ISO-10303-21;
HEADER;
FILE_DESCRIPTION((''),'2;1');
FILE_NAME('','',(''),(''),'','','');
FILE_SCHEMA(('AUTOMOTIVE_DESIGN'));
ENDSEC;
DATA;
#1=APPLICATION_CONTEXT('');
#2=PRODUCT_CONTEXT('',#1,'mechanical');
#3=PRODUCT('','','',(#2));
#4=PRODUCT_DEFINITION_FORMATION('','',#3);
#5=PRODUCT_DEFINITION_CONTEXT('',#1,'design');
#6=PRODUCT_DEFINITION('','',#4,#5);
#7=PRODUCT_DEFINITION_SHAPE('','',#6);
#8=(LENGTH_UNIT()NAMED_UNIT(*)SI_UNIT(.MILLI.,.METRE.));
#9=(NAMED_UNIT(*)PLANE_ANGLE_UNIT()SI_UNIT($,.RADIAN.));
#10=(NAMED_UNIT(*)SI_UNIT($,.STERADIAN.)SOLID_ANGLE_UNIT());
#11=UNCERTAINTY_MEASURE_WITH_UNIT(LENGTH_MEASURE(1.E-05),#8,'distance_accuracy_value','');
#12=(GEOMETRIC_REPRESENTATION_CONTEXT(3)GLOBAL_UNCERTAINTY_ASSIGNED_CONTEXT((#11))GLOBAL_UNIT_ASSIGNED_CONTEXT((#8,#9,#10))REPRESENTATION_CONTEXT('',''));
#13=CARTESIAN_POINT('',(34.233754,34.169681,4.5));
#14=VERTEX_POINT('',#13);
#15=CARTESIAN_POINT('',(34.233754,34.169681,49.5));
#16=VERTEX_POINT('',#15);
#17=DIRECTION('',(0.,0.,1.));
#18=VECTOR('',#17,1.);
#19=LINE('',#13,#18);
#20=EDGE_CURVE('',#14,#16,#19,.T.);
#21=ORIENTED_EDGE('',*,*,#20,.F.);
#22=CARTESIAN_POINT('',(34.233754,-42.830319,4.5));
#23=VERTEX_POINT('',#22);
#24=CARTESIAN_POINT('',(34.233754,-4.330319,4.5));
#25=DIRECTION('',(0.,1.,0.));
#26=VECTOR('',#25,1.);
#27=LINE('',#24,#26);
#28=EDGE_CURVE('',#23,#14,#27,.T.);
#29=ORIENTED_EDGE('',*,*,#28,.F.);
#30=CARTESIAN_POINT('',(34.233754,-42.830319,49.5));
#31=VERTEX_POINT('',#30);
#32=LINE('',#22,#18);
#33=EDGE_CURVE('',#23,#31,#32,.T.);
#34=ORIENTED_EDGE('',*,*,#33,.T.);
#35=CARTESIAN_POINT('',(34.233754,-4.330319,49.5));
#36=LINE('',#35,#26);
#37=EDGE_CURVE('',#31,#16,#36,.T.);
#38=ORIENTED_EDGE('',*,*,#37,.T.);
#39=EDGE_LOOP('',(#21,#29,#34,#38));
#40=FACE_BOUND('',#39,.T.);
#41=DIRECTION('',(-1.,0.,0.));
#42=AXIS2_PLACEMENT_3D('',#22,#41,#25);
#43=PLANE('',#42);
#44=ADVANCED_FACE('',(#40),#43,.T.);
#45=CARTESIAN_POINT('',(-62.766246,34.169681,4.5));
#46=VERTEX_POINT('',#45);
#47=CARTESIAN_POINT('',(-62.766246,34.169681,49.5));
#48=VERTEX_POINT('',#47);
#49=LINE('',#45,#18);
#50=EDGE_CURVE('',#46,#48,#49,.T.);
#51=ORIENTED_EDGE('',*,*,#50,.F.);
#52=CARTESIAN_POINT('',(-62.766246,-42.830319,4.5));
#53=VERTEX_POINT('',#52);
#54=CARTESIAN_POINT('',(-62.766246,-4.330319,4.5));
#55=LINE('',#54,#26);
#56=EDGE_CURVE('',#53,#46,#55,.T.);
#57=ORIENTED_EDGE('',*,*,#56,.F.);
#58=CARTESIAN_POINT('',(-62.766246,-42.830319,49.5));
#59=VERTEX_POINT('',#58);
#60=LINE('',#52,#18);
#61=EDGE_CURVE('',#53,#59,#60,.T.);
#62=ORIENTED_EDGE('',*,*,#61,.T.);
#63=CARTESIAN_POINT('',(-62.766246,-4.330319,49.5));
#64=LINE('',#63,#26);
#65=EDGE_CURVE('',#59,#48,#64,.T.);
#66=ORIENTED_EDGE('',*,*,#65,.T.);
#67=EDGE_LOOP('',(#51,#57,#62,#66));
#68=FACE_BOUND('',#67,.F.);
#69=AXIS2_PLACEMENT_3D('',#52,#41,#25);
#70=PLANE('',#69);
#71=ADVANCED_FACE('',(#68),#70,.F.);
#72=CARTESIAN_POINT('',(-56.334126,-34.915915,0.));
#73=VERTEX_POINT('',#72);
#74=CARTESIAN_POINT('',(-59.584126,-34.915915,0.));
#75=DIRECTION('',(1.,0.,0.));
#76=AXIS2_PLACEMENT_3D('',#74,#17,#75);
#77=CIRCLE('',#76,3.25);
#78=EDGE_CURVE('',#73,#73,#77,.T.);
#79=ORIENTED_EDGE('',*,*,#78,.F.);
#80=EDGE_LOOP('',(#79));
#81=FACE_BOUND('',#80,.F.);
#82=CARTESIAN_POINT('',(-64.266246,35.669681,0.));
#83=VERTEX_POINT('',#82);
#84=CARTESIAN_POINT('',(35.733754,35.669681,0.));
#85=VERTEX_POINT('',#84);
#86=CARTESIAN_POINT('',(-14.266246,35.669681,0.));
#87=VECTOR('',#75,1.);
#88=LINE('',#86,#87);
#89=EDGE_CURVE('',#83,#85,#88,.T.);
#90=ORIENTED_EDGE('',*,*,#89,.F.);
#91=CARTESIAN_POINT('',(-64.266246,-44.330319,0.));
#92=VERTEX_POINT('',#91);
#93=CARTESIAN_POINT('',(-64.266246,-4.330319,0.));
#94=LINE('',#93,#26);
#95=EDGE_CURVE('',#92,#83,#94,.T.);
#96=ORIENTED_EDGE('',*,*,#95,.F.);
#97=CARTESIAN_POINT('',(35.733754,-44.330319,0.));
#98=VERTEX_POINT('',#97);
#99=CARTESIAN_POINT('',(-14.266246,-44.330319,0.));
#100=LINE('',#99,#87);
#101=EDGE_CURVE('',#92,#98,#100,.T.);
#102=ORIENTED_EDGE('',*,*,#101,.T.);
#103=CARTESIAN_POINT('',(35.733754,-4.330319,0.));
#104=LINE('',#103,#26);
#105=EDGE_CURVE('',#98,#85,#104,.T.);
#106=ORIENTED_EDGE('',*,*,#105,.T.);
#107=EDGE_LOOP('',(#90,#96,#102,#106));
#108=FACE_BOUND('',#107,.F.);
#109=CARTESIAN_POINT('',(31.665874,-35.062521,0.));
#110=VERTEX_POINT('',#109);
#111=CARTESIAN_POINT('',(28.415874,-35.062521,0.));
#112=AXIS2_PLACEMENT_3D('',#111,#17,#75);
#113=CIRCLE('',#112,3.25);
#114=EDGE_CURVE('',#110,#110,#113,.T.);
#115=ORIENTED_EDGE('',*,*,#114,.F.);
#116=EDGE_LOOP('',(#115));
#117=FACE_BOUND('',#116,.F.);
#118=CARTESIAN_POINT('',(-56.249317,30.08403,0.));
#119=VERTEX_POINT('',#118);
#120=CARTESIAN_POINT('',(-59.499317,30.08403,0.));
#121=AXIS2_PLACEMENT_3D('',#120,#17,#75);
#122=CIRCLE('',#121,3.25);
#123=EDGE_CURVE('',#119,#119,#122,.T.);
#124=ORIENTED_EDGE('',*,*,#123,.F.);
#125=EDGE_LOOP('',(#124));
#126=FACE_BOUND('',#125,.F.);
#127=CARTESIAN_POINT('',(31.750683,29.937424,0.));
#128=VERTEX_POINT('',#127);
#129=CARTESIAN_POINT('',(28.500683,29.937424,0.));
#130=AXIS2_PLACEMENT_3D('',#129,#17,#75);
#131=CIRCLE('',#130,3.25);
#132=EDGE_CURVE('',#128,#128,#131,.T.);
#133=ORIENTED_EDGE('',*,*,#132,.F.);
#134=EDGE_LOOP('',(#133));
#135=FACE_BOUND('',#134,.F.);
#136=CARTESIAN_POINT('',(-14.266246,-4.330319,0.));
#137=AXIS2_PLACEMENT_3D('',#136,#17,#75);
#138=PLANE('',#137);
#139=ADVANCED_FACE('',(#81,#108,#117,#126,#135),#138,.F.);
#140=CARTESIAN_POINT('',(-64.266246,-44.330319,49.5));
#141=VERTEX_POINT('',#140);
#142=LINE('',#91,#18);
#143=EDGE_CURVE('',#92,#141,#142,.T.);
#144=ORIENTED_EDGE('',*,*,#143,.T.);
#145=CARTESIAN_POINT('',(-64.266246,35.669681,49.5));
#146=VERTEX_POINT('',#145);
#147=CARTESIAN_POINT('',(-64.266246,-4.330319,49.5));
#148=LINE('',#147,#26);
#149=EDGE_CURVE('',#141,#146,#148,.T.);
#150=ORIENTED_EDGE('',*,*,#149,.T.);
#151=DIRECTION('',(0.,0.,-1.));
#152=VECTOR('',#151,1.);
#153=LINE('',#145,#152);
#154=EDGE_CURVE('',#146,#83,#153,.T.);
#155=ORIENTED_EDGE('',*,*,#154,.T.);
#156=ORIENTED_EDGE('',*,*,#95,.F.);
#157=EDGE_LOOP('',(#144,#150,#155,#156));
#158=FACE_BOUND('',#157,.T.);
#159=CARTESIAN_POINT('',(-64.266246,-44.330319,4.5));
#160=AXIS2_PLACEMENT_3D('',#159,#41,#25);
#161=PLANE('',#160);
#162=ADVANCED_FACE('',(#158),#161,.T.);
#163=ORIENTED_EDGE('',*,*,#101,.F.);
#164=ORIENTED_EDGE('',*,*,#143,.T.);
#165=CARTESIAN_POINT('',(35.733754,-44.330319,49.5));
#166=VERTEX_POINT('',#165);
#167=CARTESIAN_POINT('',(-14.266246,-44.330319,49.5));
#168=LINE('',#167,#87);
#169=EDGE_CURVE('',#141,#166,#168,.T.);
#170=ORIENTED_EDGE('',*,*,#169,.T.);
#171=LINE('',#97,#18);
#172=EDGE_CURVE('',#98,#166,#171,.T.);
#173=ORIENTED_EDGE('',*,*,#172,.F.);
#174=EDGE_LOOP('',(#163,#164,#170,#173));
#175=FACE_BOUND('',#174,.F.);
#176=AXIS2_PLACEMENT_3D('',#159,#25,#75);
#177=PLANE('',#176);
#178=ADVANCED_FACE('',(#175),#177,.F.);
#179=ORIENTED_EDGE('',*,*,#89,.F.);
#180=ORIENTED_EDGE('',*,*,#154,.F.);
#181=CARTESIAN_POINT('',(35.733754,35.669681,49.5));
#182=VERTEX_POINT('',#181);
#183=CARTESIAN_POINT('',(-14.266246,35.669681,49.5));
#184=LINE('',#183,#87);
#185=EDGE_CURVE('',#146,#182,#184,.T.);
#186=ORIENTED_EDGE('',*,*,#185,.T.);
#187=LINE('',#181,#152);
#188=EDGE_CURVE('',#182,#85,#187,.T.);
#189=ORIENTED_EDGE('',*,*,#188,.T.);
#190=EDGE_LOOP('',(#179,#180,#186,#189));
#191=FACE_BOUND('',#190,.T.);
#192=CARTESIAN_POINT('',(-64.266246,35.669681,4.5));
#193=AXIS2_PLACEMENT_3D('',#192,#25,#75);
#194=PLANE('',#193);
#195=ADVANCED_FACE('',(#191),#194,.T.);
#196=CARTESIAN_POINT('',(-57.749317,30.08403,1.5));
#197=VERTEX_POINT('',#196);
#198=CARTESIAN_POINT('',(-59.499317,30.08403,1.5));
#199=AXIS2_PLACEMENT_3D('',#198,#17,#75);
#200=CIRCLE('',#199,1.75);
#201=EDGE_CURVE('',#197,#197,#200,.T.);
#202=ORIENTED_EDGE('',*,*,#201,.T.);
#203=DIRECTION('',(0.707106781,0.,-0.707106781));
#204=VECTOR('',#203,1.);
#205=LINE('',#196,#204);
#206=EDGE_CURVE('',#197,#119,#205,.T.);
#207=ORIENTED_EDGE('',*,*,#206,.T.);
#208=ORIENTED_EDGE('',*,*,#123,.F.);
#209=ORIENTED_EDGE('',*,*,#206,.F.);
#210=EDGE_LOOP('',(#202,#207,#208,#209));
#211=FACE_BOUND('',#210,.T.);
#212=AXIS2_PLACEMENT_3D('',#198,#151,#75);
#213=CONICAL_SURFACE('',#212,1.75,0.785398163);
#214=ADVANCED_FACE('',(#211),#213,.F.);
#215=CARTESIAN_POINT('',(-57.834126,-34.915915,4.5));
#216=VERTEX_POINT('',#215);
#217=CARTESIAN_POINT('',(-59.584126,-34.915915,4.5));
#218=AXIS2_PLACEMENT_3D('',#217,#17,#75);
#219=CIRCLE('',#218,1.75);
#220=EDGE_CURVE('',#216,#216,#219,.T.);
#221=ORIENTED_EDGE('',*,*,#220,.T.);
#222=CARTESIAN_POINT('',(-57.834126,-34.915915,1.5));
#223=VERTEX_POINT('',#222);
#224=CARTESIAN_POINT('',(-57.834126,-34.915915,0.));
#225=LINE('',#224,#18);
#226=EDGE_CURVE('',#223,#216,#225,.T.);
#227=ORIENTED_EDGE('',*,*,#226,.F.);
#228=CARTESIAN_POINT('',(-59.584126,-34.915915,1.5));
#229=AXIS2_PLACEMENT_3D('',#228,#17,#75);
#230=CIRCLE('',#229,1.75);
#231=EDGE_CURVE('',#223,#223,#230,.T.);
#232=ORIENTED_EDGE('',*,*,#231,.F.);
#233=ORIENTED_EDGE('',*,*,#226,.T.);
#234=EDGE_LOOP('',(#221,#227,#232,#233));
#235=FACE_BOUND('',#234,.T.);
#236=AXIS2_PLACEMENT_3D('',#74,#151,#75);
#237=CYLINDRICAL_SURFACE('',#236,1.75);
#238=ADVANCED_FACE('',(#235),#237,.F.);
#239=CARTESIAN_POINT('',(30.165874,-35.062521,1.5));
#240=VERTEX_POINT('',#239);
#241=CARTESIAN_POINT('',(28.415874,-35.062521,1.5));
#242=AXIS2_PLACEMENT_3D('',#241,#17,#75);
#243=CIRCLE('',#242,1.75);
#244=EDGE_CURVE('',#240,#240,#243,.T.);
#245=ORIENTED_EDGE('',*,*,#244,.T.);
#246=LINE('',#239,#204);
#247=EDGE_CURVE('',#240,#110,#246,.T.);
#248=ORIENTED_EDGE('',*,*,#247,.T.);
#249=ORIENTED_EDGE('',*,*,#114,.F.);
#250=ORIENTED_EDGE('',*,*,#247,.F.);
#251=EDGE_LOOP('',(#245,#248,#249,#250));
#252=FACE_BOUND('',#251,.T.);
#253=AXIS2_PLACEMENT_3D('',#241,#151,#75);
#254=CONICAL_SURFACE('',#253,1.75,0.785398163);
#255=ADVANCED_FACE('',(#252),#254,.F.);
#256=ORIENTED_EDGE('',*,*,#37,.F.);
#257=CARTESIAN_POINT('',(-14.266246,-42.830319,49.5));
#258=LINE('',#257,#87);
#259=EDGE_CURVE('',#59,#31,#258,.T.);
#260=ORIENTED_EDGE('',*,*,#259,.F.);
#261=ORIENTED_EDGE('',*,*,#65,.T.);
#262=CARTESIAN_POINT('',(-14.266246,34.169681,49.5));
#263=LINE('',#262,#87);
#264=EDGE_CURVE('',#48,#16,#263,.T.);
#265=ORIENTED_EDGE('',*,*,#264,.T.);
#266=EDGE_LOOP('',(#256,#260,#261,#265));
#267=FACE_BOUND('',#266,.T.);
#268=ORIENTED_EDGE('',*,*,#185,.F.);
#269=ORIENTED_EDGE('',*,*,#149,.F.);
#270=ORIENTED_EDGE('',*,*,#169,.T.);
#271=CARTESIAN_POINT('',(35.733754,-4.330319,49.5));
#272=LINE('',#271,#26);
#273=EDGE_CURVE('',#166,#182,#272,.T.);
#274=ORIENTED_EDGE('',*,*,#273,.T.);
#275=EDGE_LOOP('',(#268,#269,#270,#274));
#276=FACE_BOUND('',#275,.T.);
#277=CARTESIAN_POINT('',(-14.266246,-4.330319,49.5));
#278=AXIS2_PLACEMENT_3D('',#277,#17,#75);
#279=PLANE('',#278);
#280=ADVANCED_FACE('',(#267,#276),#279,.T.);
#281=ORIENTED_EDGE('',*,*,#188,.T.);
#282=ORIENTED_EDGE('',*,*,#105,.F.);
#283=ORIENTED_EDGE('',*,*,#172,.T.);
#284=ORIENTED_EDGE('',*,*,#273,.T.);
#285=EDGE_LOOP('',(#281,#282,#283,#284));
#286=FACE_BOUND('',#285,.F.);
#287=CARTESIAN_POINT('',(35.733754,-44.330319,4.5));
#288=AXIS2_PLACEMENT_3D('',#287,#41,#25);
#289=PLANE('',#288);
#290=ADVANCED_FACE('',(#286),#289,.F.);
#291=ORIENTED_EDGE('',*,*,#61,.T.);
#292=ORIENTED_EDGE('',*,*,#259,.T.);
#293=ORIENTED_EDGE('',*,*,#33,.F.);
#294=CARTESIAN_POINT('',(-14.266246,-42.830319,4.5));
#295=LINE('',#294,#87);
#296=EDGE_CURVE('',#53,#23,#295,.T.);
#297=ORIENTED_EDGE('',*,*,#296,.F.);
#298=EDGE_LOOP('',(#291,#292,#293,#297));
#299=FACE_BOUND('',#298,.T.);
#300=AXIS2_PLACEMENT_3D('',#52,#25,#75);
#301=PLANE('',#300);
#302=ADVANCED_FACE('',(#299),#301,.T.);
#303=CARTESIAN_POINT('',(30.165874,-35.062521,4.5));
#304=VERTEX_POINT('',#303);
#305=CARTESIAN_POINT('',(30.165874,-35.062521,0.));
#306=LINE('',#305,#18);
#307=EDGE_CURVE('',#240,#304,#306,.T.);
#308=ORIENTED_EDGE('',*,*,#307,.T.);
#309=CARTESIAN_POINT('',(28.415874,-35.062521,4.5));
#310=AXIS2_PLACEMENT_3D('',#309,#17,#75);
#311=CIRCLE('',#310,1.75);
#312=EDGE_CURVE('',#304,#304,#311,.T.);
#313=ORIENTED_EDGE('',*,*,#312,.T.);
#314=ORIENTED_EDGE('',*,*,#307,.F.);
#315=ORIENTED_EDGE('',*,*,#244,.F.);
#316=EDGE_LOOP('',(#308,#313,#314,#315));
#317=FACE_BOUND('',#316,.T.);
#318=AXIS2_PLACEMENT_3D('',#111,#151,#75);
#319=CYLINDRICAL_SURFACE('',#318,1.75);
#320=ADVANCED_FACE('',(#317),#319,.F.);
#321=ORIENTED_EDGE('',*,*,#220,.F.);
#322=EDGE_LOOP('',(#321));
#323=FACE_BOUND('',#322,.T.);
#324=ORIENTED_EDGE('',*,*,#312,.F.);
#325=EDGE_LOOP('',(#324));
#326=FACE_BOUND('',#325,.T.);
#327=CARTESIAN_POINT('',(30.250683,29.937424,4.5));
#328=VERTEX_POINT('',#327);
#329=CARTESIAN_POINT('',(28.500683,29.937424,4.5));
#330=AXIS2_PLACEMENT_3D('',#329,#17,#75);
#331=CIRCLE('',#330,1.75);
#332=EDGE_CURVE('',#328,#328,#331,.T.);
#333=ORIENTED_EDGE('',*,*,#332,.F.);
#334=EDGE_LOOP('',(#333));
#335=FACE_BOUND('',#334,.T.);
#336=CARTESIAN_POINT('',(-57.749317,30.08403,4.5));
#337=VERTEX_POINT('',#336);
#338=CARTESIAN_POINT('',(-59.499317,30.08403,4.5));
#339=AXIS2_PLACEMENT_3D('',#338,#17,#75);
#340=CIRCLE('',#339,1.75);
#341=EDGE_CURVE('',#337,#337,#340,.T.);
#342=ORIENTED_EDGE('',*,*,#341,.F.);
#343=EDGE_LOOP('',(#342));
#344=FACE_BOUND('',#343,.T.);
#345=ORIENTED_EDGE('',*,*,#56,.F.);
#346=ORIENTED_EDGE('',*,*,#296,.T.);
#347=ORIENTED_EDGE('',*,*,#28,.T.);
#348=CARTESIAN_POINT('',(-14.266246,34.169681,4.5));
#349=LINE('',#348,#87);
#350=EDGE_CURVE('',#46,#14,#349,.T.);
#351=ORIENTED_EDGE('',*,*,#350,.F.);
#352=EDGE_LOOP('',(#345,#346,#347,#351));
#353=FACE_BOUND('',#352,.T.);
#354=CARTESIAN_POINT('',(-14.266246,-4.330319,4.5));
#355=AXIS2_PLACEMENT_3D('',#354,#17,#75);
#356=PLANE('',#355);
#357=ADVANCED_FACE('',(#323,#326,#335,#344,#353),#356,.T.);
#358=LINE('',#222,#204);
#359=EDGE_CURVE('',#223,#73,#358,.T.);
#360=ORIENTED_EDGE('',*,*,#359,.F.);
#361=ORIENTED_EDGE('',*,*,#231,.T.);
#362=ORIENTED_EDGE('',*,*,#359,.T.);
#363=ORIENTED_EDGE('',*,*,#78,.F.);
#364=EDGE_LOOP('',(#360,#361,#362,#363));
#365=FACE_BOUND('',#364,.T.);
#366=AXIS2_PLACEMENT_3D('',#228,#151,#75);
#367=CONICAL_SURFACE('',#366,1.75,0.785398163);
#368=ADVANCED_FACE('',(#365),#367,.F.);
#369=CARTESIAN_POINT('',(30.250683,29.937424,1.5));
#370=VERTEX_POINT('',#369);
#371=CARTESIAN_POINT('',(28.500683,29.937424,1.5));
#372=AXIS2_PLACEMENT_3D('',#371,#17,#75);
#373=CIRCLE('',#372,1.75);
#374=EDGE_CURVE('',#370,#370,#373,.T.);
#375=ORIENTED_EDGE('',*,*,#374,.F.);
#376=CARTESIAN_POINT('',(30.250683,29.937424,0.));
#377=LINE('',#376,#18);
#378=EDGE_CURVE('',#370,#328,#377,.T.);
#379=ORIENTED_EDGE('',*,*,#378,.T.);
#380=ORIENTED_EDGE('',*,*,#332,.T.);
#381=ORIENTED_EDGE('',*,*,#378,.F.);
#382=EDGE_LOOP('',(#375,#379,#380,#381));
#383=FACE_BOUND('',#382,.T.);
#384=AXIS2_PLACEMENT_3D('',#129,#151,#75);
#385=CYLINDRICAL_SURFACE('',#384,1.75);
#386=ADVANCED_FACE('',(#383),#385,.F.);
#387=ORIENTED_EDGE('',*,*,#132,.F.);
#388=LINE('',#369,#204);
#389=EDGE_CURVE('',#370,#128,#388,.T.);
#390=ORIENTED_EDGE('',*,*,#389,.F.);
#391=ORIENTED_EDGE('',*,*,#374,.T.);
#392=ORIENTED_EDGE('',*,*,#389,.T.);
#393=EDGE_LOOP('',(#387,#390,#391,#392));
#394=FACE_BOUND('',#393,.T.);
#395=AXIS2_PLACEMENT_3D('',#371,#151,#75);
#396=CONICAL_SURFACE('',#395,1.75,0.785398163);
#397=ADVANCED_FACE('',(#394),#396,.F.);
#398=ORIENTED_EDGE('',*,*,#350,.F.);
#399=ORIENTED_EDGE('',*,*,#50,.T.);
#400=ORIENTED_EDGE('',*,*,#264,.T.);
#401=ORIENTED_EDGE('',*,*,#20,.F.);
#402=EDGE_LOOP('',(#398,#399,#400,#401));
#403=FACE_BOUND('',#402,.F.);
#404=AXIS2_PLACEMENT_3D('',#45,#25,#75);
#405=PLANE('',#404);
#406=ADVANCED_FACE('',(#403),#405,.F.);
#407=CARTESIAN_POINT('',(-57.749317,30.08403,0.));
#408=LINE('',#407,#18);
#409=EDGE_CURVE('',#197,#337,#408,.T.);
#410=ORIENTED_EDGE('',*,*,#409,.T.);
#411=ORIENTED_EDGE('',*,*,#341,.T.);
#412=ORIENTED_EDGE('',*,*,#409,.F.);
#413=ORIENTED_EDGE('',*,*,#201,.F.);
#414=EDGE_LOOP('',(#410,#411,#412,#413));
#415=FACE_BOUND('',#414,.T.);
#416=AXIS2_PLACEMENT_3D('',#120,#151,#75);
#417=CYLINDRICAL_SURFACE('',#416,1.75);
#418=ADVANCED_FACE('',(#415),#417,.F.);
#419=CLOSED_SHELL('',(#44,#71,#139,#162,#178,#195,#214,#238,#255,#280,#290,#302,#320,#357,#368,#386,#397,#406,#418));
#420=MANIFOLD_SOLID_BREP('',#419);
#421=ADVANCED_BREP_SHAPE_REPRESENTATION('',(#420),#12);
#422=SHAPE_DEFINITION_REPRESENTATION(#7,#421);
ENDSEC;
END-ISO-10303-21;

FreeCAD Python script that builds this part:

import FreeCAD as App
import Part
import Sketcher
from FreeCAD import Vector
Q = App.Units.Quantity


def edges_at(feature, points):
    """Names of the edges that pass closest to the given points."""
    edges = feature.Shape.Edges
    near = lambda p: min(range(len(edges)), key=lambda i: edges[i].distToShape(Part.Vertex(*p))[0])
    return sorted({f"Edge{near(p) + 1}" for p in points})

doc = App.newDocument("Part")
body = doc.addObject("PartDesign::Body", "Body")

# Sketch on XY plane
sketch1 = body.newObject("Sketcher::SketchObject", "Sketch")
sketch1.AttachmentSupport = (doc.getObject("XY_Plane"), [""])
sketch1.MapMode = "FlatFace"
sketch1.addGeometry([
    Part.LineSegment(Vector(-64.3, 35.7, 0), Vector(-64.3, -44.3, 0)),  # 0
    Part.LineSegment(Vector(-64.3, -44.3, 0), Vector(35.7, -44.3, 0)),  # 1
    Part.LineSegment(Vector(35.7, -44.3, 0), Vector(35.7, 35.7, 0)),  # 2
    Part.LineSegment(Vector(35.7, 35.7, 0), Vector(-64.3, 35.7, 0)),  # 3
    Part.Circle(Vector(-59.6, -34.9, 0), Vector(0, 0, 1), 1.8),  # 4
    Part.Circle(Vector(28.4, -35.1, 0), Vector(0, 0, 1), 1.8),  # 5
    Part.Circle(Vector(-59.5, 30.1, 0), Vector(0, 0, 1), 1.8),  # 6
    Part.Circle(Vector(28.5, 29.9, 0), Vector(0, 0, 1), 1.8),  # 7
], False)
sketch1.addConstraint([
    Sketcher.Constraint("Coincident", 0, 2, 1, 1),
    Sketcher.Constraint("Coincident", 1, 2, 2, 1),
    Sketcher.Constraint("Coincident", 2, 2, 3, 1),
    Sketcher.Constraint("Coincident", 3, 2, 0, 1),
    Sketcher.Constraint("Vertical", 0),
    Sketcher.Constraint("Horizontal", 1),
    Sketcher.Constraint("Vertical", 2),
    Sketcher.Constraint("Horizontal", 3),
    Sketcher.Constraint("Equal", 4, 5),
    Sketcher.Constraint("Equal", 5, 6),
    Sketcher.Constraint("Equal", 6, 7),
    Sketcher.Constraint("Diameter", 4, Q("3.5 mm")),
    Sketcher.Constraint("DistanceX", 1, 1, 1, 2, Q("100 mm")),
    Sketcher.Constraint("DistanceY", 0, 2, 0, 1, Q("80 mm")),
    Sketcher.Constraint("DistanceX", 4, 3, 5, 3, Q("88 mm")),
    Sketcher.Constraint("DistanceX", 6, 3, 7, 3, Q("88 mm")),
    Sketcher.Constraint("DistanceY", 0, 2, 5, 3, Q("9.267798 mm")),
    Sketcher.Constraint("DistanceY", 5, 3, -1, 1, Q("35.062521 mm")),
    Sketcher.Constraint("DistanceY", -1, 1, 6, 3, Q("30.08403 mm")),
    Sketcher.Constraint("DistanceX", 4, 3, 6, 3, Q("0.084809 mm")),
    Sketcher.Constraint("DistanceY", 4, 3, 7, 3, Q("64.853339 mm")),
    Sketcher.Constraint("DistanceX", 0, 2, 4, 3, Q("4.68212 mm")),
    Sketcher.Constraint("DistanceX", 4, 3, -1, 1, Q("59.584126 mm")),
    Sketcher.Constraint("DistanceY", 4, 3, -1, 1, Q("34.915915 mm")),
])
pad1 = body.newObject("PartDesign::Pad", "Pad")
pad1.Profile = sketch1
pad1.Length = 4.5
doc.recompute()

chamfer = body.newObject("PartDesign::Chamfer", "Chamfer")
chamfer.Base = (pad1, edges_at(pad1, [
    (-61.334, -34.916, 0),
    (26.666, -35.063, 0),
    (26.751, 29.937, 0),
    (-61.249, 30.084, 0),
]))
chamfer.Size = 1.5

# Sketch on XY plane
sketch2 = body.newObject("Sketcher::SketchObject", "Sketch001")
sketch2.AttachmentSupport = (doc.getObject("XY_Plane"), [""])
sketch2.MapMode = "FlatFace"
sketch2.AttachmentOffset = App.Placement(Vector(0, 0, 4.5), App.Rotation())
sketch2.addGeometry([
    Part.LineSegment(Vector(-64, 36, 0), Vector(-64, -44, 0)),  # 0
    Part.LineSegment(Vector(-64, -44, 0), Vector(36, -44, 0)),  # 1
    Part.LineSegment(Vector(36, -44, 0), Vector(36, 36, 0)),  # 2
    Part.LineSegment(Vector(36, 36, 0), Vector(-64, 36, 0)),  # 3
    Part.LineSegment(Vector(34, -43, 0), Vector(-63, -43, 0)),  # 4
    Part.LineSegment(Vector(-63, -43, 0), Vector(-63, 34, 0)),  # 5
    Part.LineSegment(Vector(-63, 34, 0), Vector(34, 34, 0)),  # 6
    Part.LineSegment(Vector(34, 34, 0), Vector(34, -43, 0)),  # 7
], False)
sketch2.addConstraint([
    Sketcher.Constraint("Coincident", 0, 2, 1, 1),
    Sketcher.Constraint("Coincident", 1, 2, 2, 1),
    Sketcher.Constraint("Coincident", 2, 2, 3, 1),
    Sketcher.Constraint("Coincident", 3, 2, 0, 1),
    Sketcher.Constraint("Coincident", 4, 2, 5, 1),
    Sketcher.Constraint("Coincident", 5, 2, 6, 1),
    Sketcher.Constraint("Coincident", 6, 2, 7, 1),
    Sketcher.Constraint("Coincident", 7, 2, 4, 1),
    Sketcher.Constraint("Vertical", 0),
    Sketcher.Constraint("Horizontal", 1),
    Sketcher.Constraint("Vertical", 2),
    Sketcher.Constraint("Horizontal", 3),
    Sketcher.Constraint("Horizontal", 4),
    Sketcher.Constraint("Vertical", 5),
    Sketcher.Constraint("Horizontal", 6),
    Sketcher.Constraint("Vertical", 7),
    Sketcher.Constraint("DistanceX", 1, 1, 1, 2, Q("100 mm")),
    Sketcher.Constraint("DistanceX", 4, 2, 4, 1, Q("97 mm")),
    Sketcher.Constraint("DistanceY", 0, 2, 0, 1, Q("80 mm")),
    Sketcher.Constraint("DistanceY", 5, 1, 5, 2, Q("77 mm")),
    Sketcher.Constraint("DistanceX", 0, 2, 4, 2, Q("1.5 mm")),
    Sketcher.Constraint("DistanceY", 0, 2, 4, 2, Q("1.5 mm")),
    Sketcher.Constraint("DistanceY", 0, 2, -1, 1, Q("44.330319 mm")),
    Sketcher.Constraint("DistanceX", 0, 2, -1, 1, Q("64.266246 mm")),
])
pad2 = body.newObject("PartDesign::Pad", "Pad001")
pad2.Profile = sketch2
pad2.Length = 45

doc.recompute()
